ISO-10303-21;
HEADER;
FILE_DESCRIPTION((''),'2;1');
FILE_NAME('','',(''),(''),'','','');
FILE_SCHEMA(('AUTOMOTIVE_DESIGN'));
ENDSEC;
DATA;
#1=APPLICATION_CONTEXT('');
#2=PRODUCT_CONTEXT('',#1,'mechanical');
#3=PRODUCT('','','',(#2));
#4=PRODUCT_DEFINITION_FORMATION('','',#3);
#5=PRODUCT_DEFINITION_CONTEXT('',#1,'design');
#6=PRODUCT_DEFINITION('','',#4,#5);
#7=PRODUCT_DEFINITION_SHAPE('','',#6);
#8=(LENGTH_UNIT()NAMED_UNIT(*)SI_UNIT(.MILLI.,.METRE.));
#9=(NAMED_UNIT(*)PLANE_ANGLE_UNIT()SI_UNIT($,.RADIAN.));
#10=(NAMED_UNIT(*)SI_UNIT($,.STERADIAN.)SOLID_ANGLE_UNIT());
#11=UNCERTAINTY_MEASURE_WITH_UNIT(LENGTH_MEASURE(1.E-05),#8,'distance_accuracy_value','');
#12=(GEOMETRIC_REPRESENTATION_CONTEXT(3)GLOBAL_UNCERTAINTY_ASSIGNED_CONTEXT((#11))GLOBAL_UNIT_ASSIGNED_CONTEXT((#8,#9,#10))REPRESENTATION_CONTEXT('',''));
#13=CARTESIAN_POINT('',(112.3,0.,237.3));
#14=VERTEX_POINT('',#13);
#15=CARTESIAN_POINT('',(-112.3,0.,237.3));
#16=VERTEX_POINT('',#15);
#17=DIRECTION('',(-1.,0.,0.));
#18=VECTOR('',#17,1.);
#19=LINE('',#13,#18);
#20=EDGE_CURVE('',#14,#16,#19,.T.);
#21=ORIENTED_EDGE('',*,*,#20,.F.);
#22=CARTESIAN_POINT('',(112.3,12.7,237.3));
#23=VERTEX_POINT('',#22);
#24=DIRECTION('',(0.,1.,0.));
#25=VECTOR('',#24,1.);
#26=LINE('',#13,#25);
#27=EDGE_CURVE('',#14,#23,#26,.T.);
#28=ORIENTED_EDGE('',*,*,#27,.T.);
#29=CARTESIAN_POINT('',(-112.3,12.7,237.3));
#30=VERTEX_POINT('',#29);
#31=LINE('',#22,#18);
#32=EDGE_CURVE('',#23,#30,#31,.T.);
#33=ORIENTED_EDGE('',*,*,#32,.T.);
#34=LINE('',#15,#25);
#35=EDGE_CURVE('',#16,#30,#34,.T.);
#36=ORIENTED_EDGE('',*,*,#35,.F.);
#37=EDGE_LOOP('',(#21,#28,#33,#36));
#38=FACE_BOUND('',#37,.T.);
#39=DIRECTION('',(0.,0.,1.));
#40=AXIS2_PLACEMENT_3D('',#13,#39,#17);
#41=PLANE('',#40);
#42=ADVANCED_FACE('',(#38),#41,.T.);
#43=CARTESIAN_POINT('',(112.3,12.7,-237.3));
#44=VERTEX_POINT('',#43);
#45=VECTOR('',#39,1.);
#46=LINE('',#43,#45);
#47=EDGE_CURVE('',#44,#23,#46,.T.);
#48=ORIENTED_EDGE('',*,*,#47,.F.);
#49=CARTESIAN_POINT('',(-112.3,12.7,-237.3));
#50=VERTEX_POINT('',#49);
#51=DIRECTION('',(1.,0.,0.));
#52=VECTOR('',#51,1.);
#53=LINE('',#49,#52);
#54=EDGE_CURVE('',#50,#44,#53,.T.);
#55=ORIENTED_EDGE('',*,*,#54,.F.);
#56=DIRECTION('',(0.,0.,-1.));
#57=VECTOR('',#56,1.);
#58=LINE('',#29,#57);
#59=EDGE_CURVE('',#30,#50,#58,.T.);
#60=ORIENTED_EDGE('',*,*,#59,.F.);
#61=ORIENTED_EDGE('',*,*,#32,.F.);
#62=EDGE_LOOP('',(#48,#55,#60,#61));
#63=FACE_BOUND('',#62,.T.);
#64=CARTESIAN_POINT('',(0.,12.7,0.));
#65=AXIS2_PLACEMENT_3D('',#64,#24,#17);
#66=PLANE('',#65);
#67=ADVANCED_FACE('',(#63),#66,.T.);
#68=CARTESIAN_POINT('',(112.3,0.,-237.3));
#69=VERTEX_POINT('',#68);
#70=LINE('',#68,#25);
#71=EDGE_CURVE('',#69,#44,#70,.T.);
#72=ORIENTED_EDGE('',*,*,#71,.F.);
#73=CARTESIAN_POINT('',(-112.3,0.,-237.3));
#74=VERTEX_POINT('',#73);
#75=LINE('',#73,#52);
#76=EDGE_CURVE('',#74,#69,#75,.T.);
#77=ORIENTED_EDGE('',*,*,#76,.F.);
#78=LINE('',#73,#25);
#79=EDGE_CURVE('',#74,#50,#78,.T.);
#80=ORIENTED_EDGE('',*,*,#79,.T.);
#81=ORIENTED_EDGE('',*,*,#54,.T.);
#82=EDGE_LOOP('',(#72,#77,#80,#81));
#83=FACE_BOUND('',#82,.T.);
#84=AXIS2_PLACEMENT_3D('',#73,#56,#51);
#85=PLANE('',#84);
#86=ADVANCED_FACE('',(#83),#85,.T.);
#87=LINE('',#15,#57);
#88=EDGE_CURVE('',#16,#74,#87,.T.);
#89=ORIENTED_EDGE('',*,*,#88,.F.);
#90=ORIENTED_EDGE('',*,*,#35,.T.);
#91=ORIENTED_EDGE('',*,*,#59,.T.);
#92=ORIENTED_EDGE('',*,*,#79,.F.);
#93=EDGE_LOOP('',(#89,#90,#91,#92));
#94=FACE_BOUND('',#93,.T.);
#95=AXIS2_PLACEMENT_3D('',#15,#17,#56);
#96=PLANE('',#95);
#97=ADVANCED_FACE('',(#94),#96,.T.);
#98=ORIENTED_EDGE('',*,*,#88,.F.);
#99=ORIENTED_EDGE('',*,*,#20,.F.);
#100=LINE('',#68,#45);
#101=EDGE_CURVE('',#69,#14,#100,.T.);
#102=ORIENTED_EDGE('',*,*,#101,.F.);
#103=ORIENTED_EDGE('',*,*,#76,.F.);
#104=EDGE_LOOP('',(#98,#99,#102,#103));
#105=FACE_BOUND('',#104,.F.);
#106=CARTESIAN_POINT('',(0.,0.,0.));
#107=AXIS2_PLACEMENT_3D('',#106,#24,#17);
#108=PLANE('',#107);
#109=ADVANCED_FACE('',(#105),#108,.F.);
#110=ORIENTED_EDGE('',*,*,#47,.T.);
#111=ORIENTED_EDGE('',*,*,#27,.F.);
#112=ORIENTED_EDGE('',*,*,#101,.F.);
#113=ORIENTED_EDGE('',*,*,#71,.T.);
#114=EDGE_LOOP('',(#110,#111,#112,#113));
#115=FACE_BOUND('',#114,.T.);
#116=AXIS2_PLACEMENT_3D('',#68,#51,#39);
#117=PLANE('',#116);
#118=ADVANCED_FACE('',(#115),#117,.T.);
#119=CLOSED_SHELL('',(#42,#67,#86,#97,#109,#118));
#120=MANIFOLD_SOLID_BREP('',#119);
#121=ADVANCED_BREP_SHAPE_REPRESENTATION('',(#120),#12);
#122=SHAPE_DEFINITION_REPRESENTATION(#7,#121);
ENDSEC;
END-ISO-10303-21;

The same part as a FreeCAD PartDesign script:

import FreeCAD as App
import Part
import Sketcher
from FreeCAD import Vector


def add_polygon(sketch, points):
    """Adds a closed chain of lines whose ends are joined by coincident constraints."""
    first, n = sketch.GeometryCount, len(points)
    for a, b in zip(points, points[1:] + points[:1]):
        sketch.addGeometry(Part.LineSegment(App.Vector(*a, 0), App.Vector(*b, 0)), False)
    for i in range(n):
        sketch.addConstraint(Sketcher.Constraint("Coincident", first + i, 2, first + (i + 1) % n, 1))

doc = App.newDocument("Part")
params = doc.addObject("Spreadsheet::Sheet", "Params")
for row, (alias, value) in enumerate([
    ("sketch1_width", "224.6 mm"),
    ("sketch1_height", "474.6 mm"),
    ("pad1_length", "12.7 mm"),
], start=1):
    params.set(f"A{row}", alias)
    params.set(f"B{row}", "=" + value)
    params.setAlias(f"B{row}", alias)

body = doc.addObject("PartDesign::Body", "Body")

# Sketch on XZ plane
sketch1 = body.newObject("Sketcher::SketchObject", "Sketch")
sketch1.AttachmentSupport = (doc.getObject("XZ_Plane"), [""])
sketch1.MapMode = "FlatFace"
add_polygon(sketch1, [(-112.3, 237.3), (112.3, 237.3), (112.3, -237.3), (-112.3, -237.3)])  # lines 0-3
sketch1.addConstraint(Sketcher.Constraint("Horizontal", 0))
sketch1.addConstraint(Sketcher.Constraint("Vertical", 1))
sketch1.addConstraint(Sketcher.Constraint("Horizontal", 2))
sketch1.addConstraint(Sketcher.Constraint("Vertical", 3))
sketch1.addConstraint(Sketcher.Constraint("Symmetric", 0, 2, 2, 2, -1, 1))
sketch1.addConstraint(Sketcher.Constraint("DistanceX", 0, 1, 0, 2, 224.6))
sketch1.addConstraint(Sketcher.Constraint("DistanceY", 1, 2, 1, 1, 474.6))
sketch1.setExpression("Constraints[9]", "Params.sketch1_width")
sketch1.setExpression("Constraints[10]", "Params.sketch1_height")
pad1 = body.newObject("PartDesign::Pad", "Pad")
pad1.Profile = sketch1
pad1.setExpression("Length", "Params.pad1_length")
pad1.Reversed = True

doc.recompute()
